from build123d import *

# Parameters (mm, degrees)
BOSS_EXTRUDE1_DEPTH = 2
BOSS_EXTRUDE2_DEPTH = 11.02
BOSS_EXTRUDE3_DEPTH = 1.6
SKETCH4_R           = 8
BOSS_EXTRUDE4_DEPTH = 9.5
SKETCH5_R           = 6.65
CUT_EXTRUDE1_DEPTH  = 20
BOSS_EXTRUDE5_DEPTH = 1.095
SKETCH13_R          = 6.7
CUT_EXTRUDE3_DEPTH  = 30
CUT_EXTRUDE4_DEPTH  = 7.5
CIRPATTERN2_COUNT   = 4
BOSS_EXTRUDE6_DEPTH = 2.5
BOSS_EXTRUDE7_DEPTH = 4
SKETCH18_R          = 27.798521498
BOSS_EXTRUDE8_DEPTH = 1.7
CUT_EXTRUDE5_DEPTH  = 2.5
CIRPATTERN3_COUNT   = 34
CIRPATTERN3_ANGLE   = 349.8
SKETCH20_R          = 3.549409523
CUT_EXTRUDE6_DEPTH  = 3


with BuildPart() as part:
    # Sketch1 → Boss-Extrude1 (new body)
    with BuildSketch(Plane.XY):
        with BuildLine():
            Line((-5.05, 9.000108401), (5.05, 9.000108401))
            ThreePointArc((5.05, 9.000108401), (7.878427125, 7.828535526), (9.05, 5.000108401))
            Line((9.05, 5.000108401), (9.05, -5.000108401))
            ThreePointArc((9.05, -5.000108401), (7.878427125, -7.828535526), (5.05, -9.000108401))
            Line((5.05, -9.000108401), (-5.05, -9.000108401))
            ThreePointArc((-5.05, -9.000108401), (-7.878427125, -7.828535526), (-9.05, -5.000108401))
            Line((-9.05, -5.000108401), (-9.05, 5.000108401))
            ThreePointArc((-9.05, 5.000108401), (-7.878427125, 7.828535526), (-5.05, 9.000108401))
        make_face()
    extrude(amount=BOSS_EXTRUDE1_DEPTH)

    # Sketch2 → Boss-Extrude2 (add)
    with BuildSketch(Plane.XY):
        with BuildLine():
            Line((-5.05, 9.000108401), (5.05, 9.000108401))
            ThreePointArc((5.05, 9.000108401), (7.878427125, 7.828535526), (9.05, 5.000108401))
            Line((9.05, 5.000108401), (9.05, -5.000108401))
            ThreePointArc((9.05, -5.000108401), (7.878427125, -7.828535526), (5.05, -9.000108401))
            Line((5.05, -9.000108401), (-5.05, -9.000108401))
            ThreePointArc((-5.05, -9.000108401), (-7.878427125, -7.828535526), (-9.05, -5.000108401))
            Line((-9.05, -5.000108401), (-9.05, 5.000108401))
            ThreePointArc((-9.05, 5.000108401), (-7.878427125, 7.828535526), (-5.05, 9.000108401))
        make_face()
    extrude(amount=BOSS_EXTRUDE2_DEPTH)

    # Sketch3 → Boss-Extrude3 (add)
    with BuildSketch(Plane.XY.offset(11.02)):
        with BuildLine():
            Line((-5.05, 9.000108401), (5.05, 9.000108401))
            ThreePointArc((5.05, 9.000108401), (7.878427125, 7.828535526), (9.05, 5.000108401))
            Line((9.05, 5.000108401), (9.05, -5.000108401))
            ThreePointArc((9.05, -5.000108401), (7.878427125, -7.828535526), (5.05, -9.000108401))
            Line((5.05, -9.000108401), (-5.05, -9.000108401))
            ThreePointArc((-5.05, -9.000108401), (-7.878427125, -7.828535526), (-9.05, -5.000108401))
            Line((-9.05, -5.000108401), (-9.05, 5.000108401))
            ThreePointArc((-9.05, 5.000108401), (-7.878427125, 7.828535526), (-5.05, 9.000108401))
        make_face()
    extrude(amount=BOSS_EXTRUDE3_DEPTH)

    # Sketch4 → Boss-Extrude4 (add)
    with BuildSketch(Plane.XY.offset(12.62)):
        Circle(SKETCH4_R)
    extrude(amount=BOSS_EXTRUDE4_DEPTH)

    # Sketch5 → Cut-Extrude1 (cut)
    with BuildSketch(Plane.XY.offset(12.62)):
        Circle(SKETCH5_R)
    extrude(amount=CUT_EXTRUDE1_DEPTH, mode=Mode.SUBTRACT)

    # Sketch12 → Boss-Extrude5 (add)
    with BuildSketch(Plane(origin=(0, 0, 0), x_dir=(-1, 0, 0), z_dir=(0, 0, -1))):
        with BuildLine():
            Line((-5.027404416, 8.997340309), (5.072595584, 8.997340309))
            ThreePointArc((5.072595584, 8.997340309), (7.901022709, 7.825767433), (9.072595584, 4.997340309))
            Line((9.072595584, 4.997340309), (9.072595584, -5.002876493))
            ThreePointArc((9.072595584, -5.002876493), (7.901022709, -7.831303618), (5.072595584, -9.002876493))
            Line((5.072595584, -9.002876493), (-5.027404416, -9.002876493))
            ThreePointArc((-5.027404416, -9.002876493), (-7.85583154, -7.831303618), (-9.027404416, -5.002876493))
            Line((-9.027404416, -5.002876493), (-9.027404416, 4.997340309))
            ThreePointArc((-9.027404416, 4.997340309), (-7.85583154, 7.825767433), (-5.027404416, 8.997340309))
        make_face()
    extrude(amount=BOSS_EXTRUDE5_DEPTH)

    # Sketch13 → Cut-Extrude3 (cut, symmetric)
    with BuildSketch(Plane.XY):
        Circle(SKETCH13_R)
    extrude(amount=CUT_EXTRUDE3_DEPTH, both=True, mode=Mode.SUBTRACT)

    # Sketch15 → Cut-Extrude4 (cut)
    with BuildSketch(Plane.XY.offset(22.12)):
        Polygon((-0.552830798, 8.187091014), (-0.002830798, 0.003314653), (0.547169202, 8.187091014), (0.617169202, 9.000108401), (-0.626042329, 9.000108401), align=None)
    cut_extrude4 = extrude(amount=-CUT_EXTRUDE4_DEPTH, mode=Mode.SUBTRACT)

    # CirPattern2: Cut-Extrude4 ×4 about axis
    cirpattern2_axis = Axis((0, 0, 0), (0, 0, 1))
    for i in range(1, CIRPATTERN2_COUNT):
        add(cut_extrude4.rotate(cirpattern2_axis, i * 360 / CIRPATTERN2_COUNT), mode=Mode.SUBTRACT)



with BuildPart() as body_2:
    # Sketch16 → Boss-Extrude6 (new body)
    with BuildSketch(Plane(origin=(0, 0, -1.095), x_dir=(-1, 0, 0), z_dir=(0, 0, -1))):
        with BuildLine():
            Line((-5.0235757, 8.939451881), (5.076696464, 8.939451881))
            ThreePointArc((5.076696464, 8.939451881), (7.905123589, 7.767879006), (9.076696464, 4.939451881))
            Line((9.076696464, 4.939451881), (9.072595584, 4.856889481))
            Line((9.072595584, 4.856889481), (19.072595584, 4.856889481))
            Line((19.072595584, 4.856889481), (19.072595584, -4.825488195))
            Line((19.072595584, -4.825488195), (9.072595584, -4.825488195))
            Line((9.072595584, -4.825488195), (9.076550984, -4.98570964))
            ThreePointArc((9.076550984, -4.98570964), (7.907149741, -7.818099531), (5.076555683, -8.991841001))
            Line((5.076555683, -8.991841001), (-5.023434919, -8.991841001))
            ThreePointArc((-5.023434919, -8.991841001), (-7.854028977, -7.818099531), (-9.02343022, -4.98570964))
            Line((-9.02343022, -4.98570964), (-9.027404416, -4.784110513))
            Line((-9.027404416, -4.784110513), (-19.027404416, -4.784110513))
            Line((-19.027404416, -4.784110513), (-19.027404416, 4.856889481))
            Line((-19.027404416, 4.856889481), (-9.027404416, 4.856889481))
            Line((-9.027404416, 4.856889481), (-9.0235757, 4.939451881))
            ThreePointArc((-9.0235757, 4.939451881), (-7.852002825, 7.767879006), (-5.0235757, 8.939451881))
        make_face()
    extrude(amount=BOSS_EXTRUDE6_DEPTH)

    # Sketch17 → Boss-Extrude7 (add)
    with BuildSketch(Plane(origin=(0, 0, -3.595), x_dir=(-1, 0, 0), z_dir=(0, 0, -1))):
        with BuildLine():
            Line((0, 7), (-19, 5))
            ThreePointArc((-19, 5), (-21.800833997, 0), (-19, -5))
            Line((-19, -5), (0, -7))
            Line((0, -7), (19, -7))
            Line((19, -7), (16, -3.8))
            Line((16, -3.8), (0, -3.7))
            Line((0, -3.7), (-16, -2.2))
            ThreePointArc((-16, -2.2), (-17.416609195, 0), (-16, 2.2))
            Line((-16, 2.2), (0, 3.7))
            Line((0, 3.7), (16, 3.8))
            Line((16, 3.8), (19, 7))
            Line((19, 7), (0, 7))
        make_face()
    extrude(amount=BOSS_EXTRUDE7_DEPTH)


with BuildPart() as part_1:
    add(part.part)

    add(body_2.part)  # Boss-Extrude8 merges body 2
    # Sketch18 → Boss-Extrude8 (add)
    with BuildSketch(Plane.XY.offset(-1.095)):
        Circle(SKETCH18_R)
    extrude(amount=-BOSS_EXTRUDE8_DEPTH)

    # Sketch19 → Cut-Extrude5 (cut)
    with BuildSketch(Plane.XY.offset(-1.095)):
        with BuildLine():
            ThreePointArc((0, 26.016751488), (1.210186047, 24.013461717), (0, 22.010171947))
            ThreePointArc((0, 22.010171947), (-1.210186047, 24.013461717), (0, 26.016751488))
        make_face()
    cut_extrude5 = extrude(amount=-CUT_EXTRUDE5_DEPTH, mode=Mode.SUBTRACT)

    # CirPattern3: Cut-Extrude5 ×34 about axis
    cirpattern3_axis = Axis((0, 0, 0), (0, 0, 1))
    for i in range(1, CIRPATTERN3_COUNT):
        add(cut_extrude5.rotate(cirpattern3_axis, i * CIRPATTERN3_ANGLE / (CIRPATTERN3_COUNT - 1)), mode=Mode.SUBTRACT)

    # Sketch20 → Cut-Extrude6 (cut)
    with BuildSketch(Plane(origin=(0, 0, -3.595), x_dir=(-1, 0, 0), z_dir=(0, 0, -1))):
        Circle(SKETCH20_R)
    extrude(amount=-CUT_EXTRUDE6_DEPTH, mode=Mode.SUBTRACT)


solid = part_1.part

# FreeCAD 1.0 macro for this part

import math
import FreeCAD as App
import Part
import Sketcher
from FreeCAD import Vector
Q = App.Units.Quantity


def add_polygon(sketch, points):
    """Adds a closed chain of lines whose ends are joined by coincident constraints."""
    first, n = sketch.GeometryCount, len(points)
    for a, b in zip(points, points[1:] + points[:1]):
        sketch.addGeometry(Part.LineSegment(App.Vector(*a, 0), App.Vector(*b, 0)), False)
    for i in range(n):
        sketch.addConstraint(Sketcher.Constraint("Coincident", first + i, 2, first + (i + 1) % n, 1))

doc = App.newDocument("Part")
body = doc.addObject("PartDesign::Body", "Body")

sketch1 = body.newObject("Sketcher::SketchObject", "Sketch")
sketch1.AttachmentSupport = (doc.getObject("XY_Plane"), [""])
sketch1.MapMode = "FlatFace"
sketch1.addGeometry(Part.LineSegment(Vector(5, 9, 0), Vector(-5, 9, 0)), False)
sketch1.addGeometry(Part.ArcOfCircle(Part.Circle(Vector(-5.1, 5, 0), Vector(0, 0, 1), 4), math.radians(90), math.radians(180)), False)
sketch1.addGeometry(Part.LineSegment(Vector(-9.1, 5, 0), Vector(-9.1, -5, 0)), False)
sketch1.addGeometry(Part.ArcOfCircle(Part.Circle(Vector(-5.1, -5, 0), Vector(0, 0, 1), 4), math.radians(180), math.radians(270)), False)
sketch1.addGeometry(Part.LineSegment(Vector(-5, -9, 0), Vector(5, -9, 0)), False)
sketch1.addGeometry(Part.ArcOfCircle(Part.Circle(Vector(5.1, -5, 0), Vector(0, 0, 1), 4), math.radians(-90), math.radians(0)), False)
sketch1.addGeometry(Part.LineSegment(Vector(9.1, -5, 0), Vector(9.1, 5, 0)), False)
sketch1.addGeometry(Part.ArcOfCircle(Part.Circle(Vector(5.1, 5, 0), Vector(0, 0, 1), 4), math.radians(0), math.radians(90)), False)
sketch1.addConstraint(Sketcher.Constraint("Tangent", 0, 2, 1, 1))
sketch1.addConstraint(Sketcher.Constraint("Tangent", 1, 2, 2, 1))
sketch1.addConstraint(Sketcher.Constraint("Tangent", 2, 2, 3, 1))
sketch1.addConstraint(Sketcher.Constraint("Tangent", 3, 2, 4, 1))
sketch1.addConstraint(Sketcher.Constraint("Tangent", 4, 2, 5, 1))
sketch1.addConstraint(Sketcher.Constraint("Tangent", 5, 2, 6, 1))
sketch1.addConstraint(Sketcher.Constraint("Tangent", 6, 2, 7, 1))
sketch1.addConstraint(Sketcher.Constraint("Tangent", 7, 2, 0, 1))
sketch1.addConstraint(Sketcher.Constraint("Horizontal", 0))
sketch1.addConstraint(Sketcher.Constraint("Vertical", 2))
sketch1.addConstraint(Sketcher.Constraint("Horizontal", 4))
sketch1.addConstraint(Sketcher.Constraint("Vertical", 6))
sketch1.addConstraint(Sketcher.Constraint("Equal", 1, 3))
sketch1.addConstraint(Sketcher.Constraint("Equal", 3, 5))
sketch1.addConstraint(Sketcher.Constraint("Equal", 5, 7))
sketch1.addConstraint(Sketcher.Constraint("Symmetric", 1, 3, 5, 3, -1, 1))
sketch1.addConstraint(Sketcher.Constraint("Radius", 1, Q("4 mm")))
sketch1.addConstraint(Sketcher.Constraint("DistanceX", 0, 2, 0, 1, Q("10.1 mm")))
sketch1.addConstraint(Sketcher.Constraint("DistanceY", 2, 2, 2, 1, Q("10.000217 mm")))
pad1 = body.newObject("PartDesign::Pad", "Pad")
pad1.Profile = sketch1
pad1.Length = 2

sketch2 = body.newObject("Sketcher::SketchObject", "Sketch001")
sketch2.AttachmentSupport = (doc.getObject("XY_Plane"), [""])
sketch2.MapMode = "FlatFace"
sketch2.addGeometry(Part.LineSegment(Vector(5, 9, 0), Vector(-5, 9, 0)), False)
sketch2.addGeometry(Part.ArcOfCircle(Part.Circle(Vector(-5.1, 5, 0), Vector(0, 0, 1), 4), math.radians(90), math.radians(180)), False)
sketch2.addGeometry(Part.LineSegment(Vector(-9.1, 5, 0), Vector(-9.1, -5, 0)), False)
sketch2.addGeometry(Part.ArcOfCircle(Part.Circle(Vector(-5.1, -5, 0), Vector(0, 0, 1), 4), math.radians(180), math.radians(270)), False)
sketch2.addGeometry(Part.LineSegment(Vector(-5, -9, 0), Vector(5, -9, 0)), False)
sketch2.addGeometry(Part.ArcOfCircle(Part.Circle(Vector(5.1, -5, 0), Vector(0, 0, 1), 4), math.radians(-90), math.radians(0)), False)
sketch2.addGeometry(Part.LineSegment(Vector(9.1, -5, 0), Vector(9.1, 5, 0)), False)
sketch2.addGeometry(Part.ArcOfCircle(Part.Circle(Vector(5.1, 5, 0), Vector(0, 0, 1), 4), math.radians(0), math.radians(90)), False)
sketch2.addConstraint(Sketcher.Constraint("Tangent", 0, 2, 1, 1))
sketch2.addConstraint(Sketcher.Constraint("Tangent", 1, 2, 2, 1))
sketch2.addConstraint(Sketcher.Constraint("Tangent", 2, 2, 3, 1))
sketch2.addConstraint(Sketcher.Constraint("Tangent", 3, 2, 4, 1))
sketch2.addConstraint(Sketcher.Constraint("Tangent", 4, 2, 5, 1))
sketch2.addConstraint(Sketcher.Constraint("Tangent", 5, 2, 6, 1))
sketch2.addConstraint(Sketcher.Constraint("Tangent", 6, 2, 7, 1))
sketch2.addConstraint(Sketcher.Constraint("Tangent", 7, 2, 0, 1))
sketch2.addConstraint(Sketcher.Constraint("Horizontal", 0))
sketch2.addConstraint(Sketcher.Constraint("Vertical", 2))
sketch2.addConstraint(Sketcher.Constraint("Horizontal", 4))
sketch2.addConstraint(Sketcher.Constraint("Vertical", 6))
sketch2.addConstraint(Sketcher.Constraint("Equal", 1, 3))
sketch2.addConstraint(Sketcher.Constraint("Equal", 3, 5))
sketch2.addConstraint(Sketcher.Constraint("Equal", 5, 7))
sketch2.addConstraint(Sketcher.Constraint("Symmetric", 1, 3, 5, 3, -1, 1))
sketch2.addConstraint(Sketcher.Constraint("Radius", 1, Q("4 mm")))
sketch2.addConstraint(Sketcher.Constraint("DistanceX", 0, 2, 0, 1, Q("10.1 mm")))
sketch2.addConstraint(Sketcher.Constraint("DistanceY", 2, 2, 2, 1, Q("10.000217 mm")))
pad2 = body.newObject("PartDesign::Pad", "Pad001")
pad2.Profile = sketch2
pad2.Length = 11.02

sketch3 = body.newObject("Sketcher::SketchObject", "Sketch002")
sketch3.AttachmentSupport = (doc.getObject("XY_Plane"), [""])
sketch3.MapMode = "FlatFace"
sketch3.AttachmentOffset = App.Placement(Vector(0, 0, 11.02), App.Rotation())
sketch3.addGeometry(Part.LineSegment(Vector(5, 9, 0), Vector(-5, 9, 0)), False)
sketch3.addGeometry(Part.ArcOfCircle(Part.Circle(Vector(-5.1, 5, 0), Vector(0, 0, 1), 4), math.radians(90), math.radians(180)), False)
sketch3.addGeometry(Part.LineSegment(Vector(-9.1, 5, 0), Vector(-9.1, -5, 0)), False)
sketch3.addGeometry(Part.ArcOfCircle(Part.Circle(Vector(-5.1, -5, 0), Vector(0, 0, 1), 4), math.radians(180), math.radians(270)), False)
sketch3.addGeometry(Part.LineSegment(Vector(-5, -9, 0), Vector(5, -9, 0)), False)
sketch3.addGeometry(Part.ArcOfCircle(Part.Circle(Vector(5.1, -5, 0), Vector(0, 0, 1), 4), math.radians(-90), math.radians(0)), False)
sketch3.addGeometry(Part.LineSegment(Vector(9.1, -5, 0), Vector(9.1, 5, 0)), False)
sketch3.addGeometry(Part.ArcOfCircle(Part.Circle(Vector(5.1, 5, 0), Vector(0, 0, 1), 4), math.radians(0), math.radians(90)), False)
sketch3.addConstraint(Sketcher.Constraint("Tangent", 0, 2, 1, 1))
sketch3.addConstraint(Sketcher.Constraint("Tangent", 1, 2, 2, 1))
sketch3.addConstraint(Sketcher.Constraint("Tangent", 2, 2, 3, 1))
sketch3.addConstraint(Sketcher.Constraint("Tangent", 3, 2, 4, 1))
sketch3.addConstraint(Sketcher.Constraint("Tangent", 4, 2, 5, 1))
sketch3.addConstraint(Sketcher.Constraint("Tangent", 5, 2, 6, 1))
sketch3.addConstraint(Sketcher.Constraint("Tangent", 6, 2, 7, 1))
sketch3.addConstraint(Sketcher.Constraint("Tangent", 7, 2, 0, 1))
sketch3.addConstraint(Sketcher.Constraint("Horizontal", 0))
sketch3.addConstraint(Sketcher.Constraint("Vertical", 2))
sketch3.addConstraint(Sketcher.Constraint("Horizontal", 4))
sketch3.addConstraint(Sketcher.Constraint("Vertical", 6))
sketch3.addConstraint(Sketcher.Constraint("Equal", 1, 3))
sketch3.addConstraint(Sketcher.Constraint("Equal", 3, 5))
sketch3.addConstraint(Sketcher.Constraint("Equal", 5, 7))
sketch3.addConstraint(Sketcher.Constraint("Symmetric", 1, 3, 5, 3, -1, 1))
sketch3.addConstraint(Sketcher.Constraint("Radius", 1, Q("4 mm")))
sketch3.addConstraint(Sketcher.Constraint("DistanceX", 0, 2, 0, 1, Q("10.1 mm")))
sketch3.addConstraint(Sketcher.Constraint("DistanceY", 2, 2, 2, 1, Q("10.000217 mm")))
pad3 = body.newObject("PartDesign::Pad", "Pad002")
pad3.Profile = sketch3
pad3.Length = 1.6

sketch4 = body.newObject("Sketcher::SketchObject", "Sketch003")
sketch4.AttachmentSupport = (doc.getObject("XY_Plane"), [""])
sketch4.MapMode = "FlatFace"
sketch4.AttachmentOffset = App.Placement(Vector(0, 0, 12.62), App.Rotation())
sketch4.addGeometry(Part.Circle(Vector(0, 0, 0), Vector(0, 0, 1), 8), False)
sketch4.addConstraint(Sketcher.Constraint("Coincident", 0, 3, -1, 1))
sketch4.addConstraint(Sketcher.Constraint("Diameter", 0, Q("16 mm")))
pad4 = body.newObject("PartDesign::Pad", "Pad003")
pad4.Profile = sketch4
pad4.Length = 9.5

sketch5 = body.newObject("Sketcher::SketchObject", "Sketch004")
sketch5.AttachmentSupport = (doc.getObject("XY_Plane"), [""])
sketch5.MapMode = "FlatFace"
sketch5.AttachmentOffset = App.Placement(Vector(0, 0, 12.62), App.Rotation())
sketch5.addGeometry(Part.Circle(Vector(0, 0, 0), Vector(0, 0, 1), 7), False)
sketch5.addConstraint(Sketcher.Constraint("Coincident", 0, 3, -1, 1))
sketch5.addConstraint(Sketcher.Constraint("Diameter", 0, Q("13.3 mm")))
pocket1 = body.newObject("PartDesign::Pocket", "Pocket")
pocket1.Profile = sketch5
pocket1.Length = 20
pocket1.Reversed = True

sketch6 = body.newObject("Sketcher::SketchObject", "Sketch005")
sketch6.AttachmentSupport = (doc.getObject("XY_Plane"), [""])
sketch6.MapMode = "FlatFace"
sketch6.addGeometry(Part.LineSegment(Vector(-5.1, 9, 0), Vector(5, 9, 0)), False)
sketch6.addGeometry(Part.ArcOfCircle(Part.Circle(Vector(5, 5, 0), Vector(0, 0, 1), 4), math.radians(0), math.radians(90)), False)
sketch6.addGeometry(Part.LineSegment(Vector(9, 5, 0), Vector(9, -5, 0)), False)
sketch6.addGeometry(Part.ArcOfCircle(Part.Circle(Vector(5, -5, 0), Vector(0, 0, 1), 4), math.radians(-90), math.radians(0)), False)
sketch6.addGeometry(Part.LineSegment(Vector(5, -9, 0), Vector(-5.1, -9, 0)), False)
sketch6.addGeometry(Part.ArcOfCircle(Part.Circle(Vector(-5.1, -5, 0), Vector(0, 0, 1), 4), math.radians(180), math.radians(270)), False)
sketch6.addGeometry(Part.LineSegment(Vector(-9.1, -5, 0), Vector(-9.1, 5, 0)), False)
sketch6.addGeometry(Part.ArcOfCircle(Part.Circle(Vector(-5.1, 5, 0), Vector(0, 0, 1), 4), math.radians(90), math.radians(180)), False)
sketch6.addConstraint(Sketcher.Constraint("Tangent", 0, 2, 1, 2))
sketch6.addConstraint(Sketcher.Constraint("Tangent", 1, 1, 2, 1))
sketch6.addConstraint(Sketcher.Constraint("Tangent", 2, 2, 3, 2))
sketch6.addConstraint(Sketcher.Constraint("Tangent", 3, 1, 4, 1))
sketch6.addConstraint(Sketcher.Constraint("Tangent", 4, 2, 5, 2))
sketch6.addConstraint(Sketcher.Constraint("Tangent", 5, 1, 6, 1))
sketch6.addConstraint(Sketcher.Constraint("Tangent", 6, 2, 7, 2))
sketch6.addConstraint(Sketcher.Constraint("Tangent", 7, 1, 0, 1))
sketch6.addConstraint(Sketcher.Constraint("Horizontal", 0))
sketch6.addConstraint(Sketcher.Constraint("Vertical", 2))
sketch6.addConstraint(Sketcher.Constraint("Horizontal", 4))
sketch6.addConstraint(Sketcher.Constraint("Vertical", 6))
sketch6.addConstraint(Sketcher.Constraint("Equal", 1, 3))
sketch6.addConstraint(Sketcher.Constraint("Equal", 3, 5))
sketch6.addConstraint(Sketcher.Constraint("Equal", 5, 7))
sketch6.addConstraint(Sketcher.Constraint("Radius", 1, Q("4 mm")))
sketch6.addConstraint(Sketcher.Constraint("DistanceX", 0, 1, 0, 2, Q("10.1 mm")))
sketch6.addConstraint(Sketcher.Constraint("DistanceY", 2, 2, 2, 1, Q("10.000217 mm")))
sketch6.addConstraint(Sketcher.Constraint("DistanceY", -1, 1, 1, 3, Q("4.99734 mm")))
sketch6.addConstraint(Sketcher.Constraint("DistanceX", -1, 1, 1, 3, Q("5.027404 mm")))
pad5 = body.newObject("PartDesign::Pad", "Pad004")
pad5.Profile = sketch6
pad5.Length = 1.095
pad5.Reversed = True

sketch7 = body.newObject("Sketcher::SketchObject", "Sketch006")
sketch7.AttachmentSupport = (doc.getObject("XY_Plane"), [""])
sketch7.MapMode = "FlatFace"
sketch7.addGeometry(Part.Circle(Vector(0, 0, 0), Vector(0, 0, 1), 7), False)
sketch7.addConstraint(Sketcher.Constraint("Coincident", 0, 3, -1, 1))
sketch7.addConstraint(Sketcher.Constraint("Diameter", 0, Q("13.4 mm")))
pocket2 = body.newObject("PartDesign::Pocket", "Pocket001")
pocket2.Profile = sketch7
pocket2.Length = 60
pocket2.Midplane = True

sketch8 = body.newObject("Sketcher::SketchObject", "Sketch007")
sketch8.AttachmentSupport = (doc.getObject("XY_Plane"), [""])
sketch8.MapMode = "FlatFace"
sketch8.AttachmentOffset = App.Placement(Vector(0, 0, 22.12), App.Rotation())
add_polygon(sketch8, [(-0.6, 8.2), (0, 0), (0.5, 8.2), (0.6, 9), (-0.6, 9)])
sketch8.addConstraint(Sketcher.Constraint("Horizontal", 3))
sketch8.addConstraint(Sketcher.Constraint("Horizontal", 1, 2, 4, 2))
sketch8.addConstraint(Sketcher.Constraint("Equal", 0, 1))
sketch8.addConstraint(Sketcher.Constraint("DistanceX", 4, 2, 1, 2, Q("1.1 mm")))
sketch8.addConstraint(Sketcher.Constraint("DistanceX", 1, 2, 2, 2, Q("0.07 mm")))
sketch8.addConstraint(Sketcher.Constraint("DistanceX", 3, 2, 3, 1, Q("1.243212 mm")))
sketch8.addConstraint(Sketcher.Constraint("DistanceX", 0, 2, -1, 1, Q("0.002831 mm")))
sketch8.addConstraint(Sketcher.Constraint("DistanceY", -1, 1, 1, 2, Q("8.187091 mm")))
sketch8.addConstraint(Sketcher.Constraint("DistanceY", -1, 1, 2, 2, Q("9.000108 mm")))
sketch8.addConstraint(Sketcher.Constraint("Distance", 0, Q("8.202237 mm")))
pocket3 = body.newObject("PartDesign::Pocket", "Pocket002")
pocket3.Profile = sketch8
pocket3.Length = 7.5
doc.recompute()

polarpattern = body.newObject("PartDesign::PolarPattern", "PolarPattern")
polarpattern.Originals = [pocket3]
polarpattern.Axis = (doc.getObject("Z_Axis"), [""])
polarpattern.Angle = 360
polarpattern.Occurrences = 4
body.Tip = polarpattern
body2 = doc.addObject("PartDesign::Body", "Body001")

sketch9 = body2.newObject("Sketcher::SketchObject", "Sketch008")
sketch9.AttachmentSupport = (doc.getObject("XY_Plane001"), [""])
sketch9.MapMode = "FlatFace"
sketch9.AttachmentOffset = App.Placement(Vector(0, 0, -1.095), App.Rotation())
sketch9.addGeometry(Part.LineSegment(Vector(-5.08, 8.94, 0), Vector(5.02, 8.94, 0)), False)
sketch9.addGeometry(Part.ArcOfCircle(Part.Circle(Vector(5.02, 4.94, 0), Vector(0, 0, 1), 4), math.radians(0), math.radians(90)), False)
sketch9.addGeometry(Part.LineSegment(Vector(9.02, 4.94, 0), Vector(9.03, 4.86, 0)), False)
sketch9.addGeometry(Part.LineSegment(Vector(9.03, 4.86, 0), Vector(19.03, 4.86, 0)), False)
sketch9.addGeometry(Part.LineSegment(Vector(19.03, 4.86, 0), Vector(19.03, -4.78, 0)), False)
sketch9.addGeometry(Part.LineSegment(Vector(19.03, -4.78, 0), Vector(9.03, -4.78, 0)), False)
sketch9.addGeometry(Part.LineSegment(Vector(9.03, -4.78, 0), Vector(9.02, -4.99, 0)), False)
sketch9.addGeometry(Part.ArcOfCircle(Part.Circle(Vector(5.02, -4.99, 0), Vector(0, 0, 1), 4), math.radians(-90), math.radians(0)), False)
sketch9.addGeometry(Part.LineSegment(Vector(5.02, -8.99, 0), Vector(-5.08, -8.99, 0)), False)
sketch9.addGeometry(Part.ArcOfCircle(Part.Circle(Vector(-5.08, -4.99, 0), Vector(0, 0, 1), 4), math.radians(180), math.radians(270)), False)
sketch9.addGeometry(Part.LineSegment(Vector(-9.08, -4.99, 0), Vector(-9.07, -4.83, 0)), False)
sketch9.addGeometry(Part.LineSegment(Vector(-9.07, -4.83, 0), Vector(-19.07, -4.83, 0)), False)
sketch9.addGeometry(Part.LineSegment(Vector(-19.07, -4.83, 0), Vector(-19.07, 4.86, 0)), False)
sketch9.addGeometry(Part.LineSegment(Vector(-19.07, 4.86, 0), Vector(-9.07, 4.86, 0)), False)
sketch9.addGeometry(Part.LineSegment(Vector(-9.07, 4.86, 0), Vector(-9.08, 4.94, 0)), False)
sketch9.addGeometry(Part.ArcOfCircle(Part.Circle(Vector(-5.08, 4.94, 0), Vector(0, 0, 1), 4), math.radians(90), math.radians(180)), False)
sketch9.addConstraint(Sketcher.Constraint("Tangent", 0, 2, 1, 2))
sketch9.addConstraint(Sketcher.Constraint("Coincident", 1, 1, 2, 1))
sketch9.addConstraint(Sketcher.Constraint("Coincident", 2, 2, 3, 1))
sketch9.addConstraint(Sketcher.Constraint("Coincident", 3, 2, 4, 1))
sketch9.addConstraint(Sketcher.Constraint("Coincident", 4, 2, 5, 1))
sketch9.addConstraint(Sketcher.Constraint("Coincident", 5, 2, 6, 1))
sketch9.addConstraint(Sketcher.Constraint("Coincident", 6, 2, 7, 2))
sketch9.addConstraint(Sketcher.Constraint("Tangent", 7, 1, 8, 1))
sketch9.addConstraint(Sketcher.Constraint("Tangent", 8, 2, 9, 2))
sketch9.addConstraint(Sketcher.Constraint("Coincident", 9, 1, 10, 1))
sketch9.addConstraint(Sketcher.Constraint("Coincident", 10, 2, 11, 1))
sketch9.addConstraint(Sketcher.Constraint("Coincident", 11, 2, 12, 1))
sketch9.addConstraint(Sketcher.Constraint("Coincident", 12, 2, 13, 1))
sketch9.addConstraint(Sketcher.Constraint("Coincident", 13, 2, 14, 1))
sketch9.addConstraint(Sketcher.Constraint("Coincident", 14, 2, 15, 2))
sketch9.addConstraint(Sketcher.Constraint("Tangent", 15, 1, 0, 1))
sketch9.addConstraint(Sketcher.Constraint("Horizontal", 0))
sketch9.addConstraint(Sketcher.Constraint("Horizontal", 3))
sketch9.addConstraint(Sketcher.Constraint("Vertical", 4))
sketch9.addConstraint(Sketcher.Constraint("Horizontal", 5))
sketch9.addConstraint(Sketcher.Constraint("Horizontal", 8))
sketch9.addConstraint(Sketcher.Constraint("Horizontal", 11))
sketch9.addConstraint(Sketcher.Constraint("Vertical", 12))
sketch9.addConstraint(Sketcher.Constraint("Horizontal", 13))
sketch9.addConstraint(Sketcher.Constraint("Equal", 1, 7))
sketch9.addConstraint(Sketcher.Constraint("Equal", 7, 9))
sketch9.addConstraint(Sketcher.Constraint("Equal", 9, 15))
sketch9.addConstraint(Sketcher.Constraint("Horizontal", 15, 3, 1, 1))
sketch9.addConstraint(Sketcher.Constraint("Horizontal", 6, 2, 9, 1))
sketch9.addConstraint(Sketcher.Constraint("Horizontal", 3, 2, 12, 2))
sketch9.addConstraint(Sketcher.Constraint("Horizontal", 1, 1, 14, 2))
sketch9.addConstraint(Sketcher.Constraint("Vertical", 2, 2, 5, 2))
sketch9.addConstraint(Sketcher.Constraint("Vertical", 10, 2, 13, 2))
sketch9.addConstraint(Sketcher.Constraint("Equal", 5, 11))
sketch9.addConstraint(Sketcher.Constraint("Radius", 1, Q("4 mm")))
sketch9.addConstraint(Sketcher.Constraint("DistanceX", 3, 1, 3, 2, Q("10 mm")))
sketch9.addConstraint(Sketcher.Constraint("DistanceY", 4, 2, 4, 1, Q("9.641 mm")))
sketch9.addConstraint(Sketcher.Constraint("DistanceX", 8, 2, 8, 1, Q("10.099991 mm")))
sketch9.addConstraint(Sketcher.Constraint("DistanceX", 15, 3, 2, 2, Q("14.104101 mm")))
sketch9.addConstraint(Sketcher.Constraint("DistanceY", 6, 2, 5, 2, Q("0.201599 mm")))
sketch9.addConstraint(Sketcher.Constraint("DistanceX", 10, 2, 15, 3, Q("3.995899 mm")))
sketch9.addConstraint(Sketcher.Constraint("Distance", 2, Q("0.082651 mm")))
sketch9.addConstraint(Sketcher.Constraint("Distance", 6, Q("0.201638 mm")))
sketch9.addConstraint(Sketcher.Constraint("Distance", 10, Q("0.16027 mm")))
sketch9.addConstraint(Sketcher.Constraint("DistanceX", 0, 1, 0, 2, Q("10.100272 mm")))
sketch9.addConstraint(Sketcher.Constraint("DistanceY", -1, 1, 1, 3, Q("4.939452 mm")))
sketch9.addConstraint(Sketcher.Constraint("DistanceY", 7, 3, -1, 1, Q("4.991841 mm")))
sketch9.addConstraint(Sketcher.Constraint("DistanceX", -1, 1, 6, 2, Q("9.02343 mm")))
pad6 = body2.newObject("PartDesign::Pad", "Pad005")
pad6.Profile = sketch9
pad6.Length = 2.5
pad6.Reversed = True

sketch10 = body2.newObject("Sketcher::SketchObject", "Sketch009")
sketch10.AttachmentSupport = (doc.getObject("XY_Plane001"), [""])
sketch10.MapMode = "FlatFace"
sketch10.AttachmentOffset = App.Placement(Vector(0, 0, -3.595), App.Rotation())
sketch10.addGeometry(Part.LineSegment(Vector(0, 7, 0), Vector(19, 5, 0)), False)
sketch10.addGeometry(Part.ArcOfCircle(Part.Circle(Vector(15.9, 0, 0), Vector(0, 0, 1), 5.9), math.radians(-59), math.radians(59)), False)
sketch10.addGeometry(Part.LineSegment(Vector(19, -5, 0), Vector(0, -7, 0)), False)
sketch10.addGeometry(Part.LineSegment(Vector(0, -7, 0), Vector(-19, -7, 0)), False)
sketch10.addGeometry(Part.LineSegment(Vector(-19, -7, 0), Vector(-16, -3.8, 0)), False)
sketch10.addGeometry(Part.LineSegment(Vector(-16, -3.8, 0), Vector(0, -3.7, 0)), False)
sketch10.addGeometry(Part.LineSegment(Vector(0, -3.7, 0), Vector(16, -2.2, 0)), False)
sketch10.addGeometry(Part.ArcOfCircle(Part.Circle(Vector(15, 0, 0), Vector(0, 0, 1), 2.4), math.radians(-66), math.radians(66)), False)
sketch10.addGeometry(Part.LineSegment(Vector(16, 2.2, 0), Vector(0, 3.7, 0)), False)
sketch10.addGeometry(Part.LineSegment(Vector(0, 3.7, 0), Vector(-16, 3.8, 0)), False)
sketch10.addGeometry(Part.LineSegment(Vector(-16, 3.8, 0), Vector(-19, 7, 0)), False)
sketch10.addGeometry(Part.LineSegment(Vector(-19, 7, 0), Vector(0, 7, 0)), False)
sketch10.addConstraint(Sketcher.Constraint("Coincident", 0, 2, 1, 2))
sketch10.addConstraint(Sketcher.Constraint("Coincident", 1, 1, 2, 1))
sketch10.addConstraint(Sketcher.Constraint("Coincident", 2, 2, 3, 1))
sketch10.addConstraint(Sketcher.Constraint("Coincident", 3, 2, 4, 1))
sketch10.addConstraint(Sketcher.Constraint("Coincident", 4, 2, 5, 1))
sketch10.addConstraint(Sketcher.Constraint("Coincident", 5, 2, 6, 1))
sketch10.addConstraint(Sketcher.Constraint("Coincident", 6, 2, 7, 1))
sketch10.addConstraint(Sketcher.Constraint("Coincident", 7, 2, 8, 1))
sketch10.addConstraint(Sketcher.Constraint("Coincident", 8, 2, 9, 1))
sketch10.addConstraint(Sketcher.Constraint("Coincident", 9, 2, 10, 1))
sketch10.addConstraint(Sketcher.Constraint("Coincident", 10, 2, 11, 1))
sketch10.addConstraint(Sketcher.Constraint("Coincident", 11, 2, 0, 1))
sketch10.addConstraint(Sketcher.Constraint("Horizontal", 3))
sketch10.addConstraint(Sketcher.Constraint("Horizontal", 11))
sketch10.addConstraint(Sketcher.Constraint("Symmetric", 5, 2, 8, 2, -1, 1))
sketch10.addConstraint(Sketcher.Constraint("Symmetric", 2, 2, 11, 2, -1, 1))
sketch10.addConstraint(Sketcher.Constraint("Symmetric", 0, 2, 1, 1, -1))
sketch10.addConstraint(Sketcher.Constraint("Symmetric", 6, 2, 7, 2, -1))
sketch10.addConstraint(Sketcher.Constraint("Symmetric", 4, 2, 9, 2, -1))
sketch10.addConstraint(Sketcher.Constraint("PointOnObject", 2, 2, -2))
sketch10.addConstraint(Sketcher.Constraint("PointOnObject", 5, 2, -2))
sketch10.addConstraint(Sketcher.Constraint("Vertical", 3, 2, 10, 2))
sketch10.addConstraint(Sketcher.Constraint("DistanceX", 3, 2, 3, 1, Q("19 mm")))
sketch10.addConstraint(Sketcher.Constraint("DistanceX", -1, 1, 7, 3, Q("15 mm")))
sketch10.addConstraint(Sketcher.Constraint("DistanceX", -1, 1, 0, 2, Q("19 mm")))
sketch10.addConstraint(Sketcher.Constraint("DistanceY", -1, 1, 0, 2, Q("5 mm")))
sketch10.addConstraint(Sketcher.Constraint("DistanceY", 2, 2, -1, 1, Q("7 mm")))
sketch10.addConstraint(Sketcher.Constraint("DistanceX", 4, 2, -1, 1, Q("16 mm")))
sketch10.addConstraint(Sketcher.Constraint("DistanceX", -1, 1, 6, 2, Q("16 mm")))
sketch10.addConstraint(Sketcher.Constraint("DistanceY", 4, 2, -1, 1, Q("3.8 mm")))
sketch10.addConstraint(Sketcher.Constraint("DistanceY", 5, 2, -1, 1, Q("3.7 mm")))
sketch10.addConstraint(Sketcher.Constraint("DistanceY", 6, 2, -1, 1, Q("2.2 mm")))
sketch10.addConstraint(Sketcher.Constraint("Radius", 1, Q("5.863373 mm")))
pad7 = body2.newObject("PartDesign::Pad", "Pad006")
pad7.Profile = sketch10
pad7.Length = 4
pad7.Reversed = True
doc.recompute()

boolean = body.newObject("PartDesign::Boolean", "Boolean")
boolean.Type = "Fuse"
boolean.addObjects([body2])

sketch11 = body.newObject("Sketcher::SketchObject", "Sketch010")
sketch11.AttachmentSupport = (doc.getObject("XY_Plane"), [""])
sketch11.MapMode = "FlatFace"
sketch11.AttachmentOffset = App.Placement(Vector(0, 0, -1.095), App.Rotation())
sketch11.addGeometry(Part.Circle(Vector(0, 0, 0), Vector(0, 0, 1), 28), False)
sketch11.addConstraint(Sketcher.Constraint("Coincident", 0, 3, -1, 1))
sketch11.addConstraint(Sketcher.Constraint("Diameter", 0, Q("55.597043 mm")))
pad8 = body.newObject("PartDesign::Pad", "Pad007")
pad8.Profile = sketch11
pad8.Length = 1.7
pad8.Reversed = True

sketch12 = body.newObject("Sketcher::SketchObject", "Sketch011")
sketch12.AttachmentSupport = (doc.getObject("XY_Plane"), [""])
sketch12.MapMode = "FlatFace"
sketch12.AttachmentOffset = App.Placement(Vector(0, 0, -1.095), App.Rotation())
sketch12.addGeometry(Part.ArcOfCircle(Part.Circle(Vector(-1.1, 24, 0), Vector(0, 0, 1), 2.3), math.radians(-62), math.radians(62)), False)
sketch12.addGeometry(Part.ArcOfCircle(Part.Circle(Vector(1.1, 24, 0), Vector(0, 0, 1), 2.3), math.radians(118), math.radians(242)), False)
sketch12.addConstraint(Sketcher.Constraint("Coincident", 0, 1, 1, 2))
sketch12.addConstraint(Sketcher.Constraint("Coincident", 1, 1, 0, 2))
sketch12.addConstraint(Sketcher.Constraint("Equal", 0, 1))
sketch12.addConstraint(Sketcher.Constraint("Symmetric", 0, 3, 1, 3, -2))
sketch12.addConstraint(Sketcher.Constraint("Radius", 0, Q("2.263173 mm")))
sketch12.addConstraint(Sketcher.Constraint("DistanceY", -1, 1, 0, 3, Q("24.013462 mm")))
sketch12.addConstraint(Sketcher.Constraint("DistanceY", -1, 1, 0, 1, Q("22.010172 mm")))
pocket4 = body.newObject("PartDesign::Pocket", "Pocket003")
pocket4.Profile = sketch12
pocket4.Length = 2.5
doc.recompute()

polarpattern2 = body.newObject("PartDesign::PolarPattern", "PolarPattern001")
polarpattern2.Originals = [pocket4]
polarpattern2.Axis = (doc.getObject("Z_Axis"), [""])
polarpattern2.Angle = 349.8
polarpattern2.Occurrences = 34
body.Tip = polarpattern2

sketch13 = body.newObject("Sketcher::SketchObject", "Sketch012")
sketch13.AttachmentSupport = (doc.getObject("XY_Plane"), [""])
sketch13.MapMode = "FlatFace"
sketch13.AttachmentOffset = App.Placement(Vector(0, 0, -3.595), App.Rotation())
sketch13.addGeometry(Part.Circle(Vector(0, 0, 0), Vector(0, 0, 1), 3.5), False)
sketch13.addConstraint(Sketcher.Constraint("Coincident", 0, 3, -1, 1))
sketch13.addConstraint(Sketcher.Constraint("Diameter", 0, Q("7.098819 mm")))
pocket5 = body.newObject("PartDesign::Pocket", "Pocket004")
pocket5.Profile = sketch13
pocket5.Length = 3
pocket5.Reversed = True

doc.recompute()
